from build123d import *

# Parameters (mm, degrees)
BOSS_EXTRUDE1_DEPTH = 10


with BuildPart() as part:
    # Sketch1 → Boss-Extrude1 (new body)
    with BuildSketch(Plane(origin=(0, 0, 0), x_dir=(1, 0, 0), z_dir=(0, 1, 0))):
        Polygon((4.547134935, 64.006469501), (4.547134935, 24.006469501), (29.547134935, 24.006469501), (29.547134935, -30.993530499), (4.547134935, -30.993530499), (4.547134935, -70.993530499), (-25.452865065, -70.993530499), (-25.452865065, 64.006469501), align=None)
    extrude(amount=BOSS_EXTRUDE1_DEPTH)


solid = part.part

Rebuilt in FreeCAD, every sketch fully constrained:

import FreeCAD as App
import Part
import Sketcher


def add_polygon(sketch, points):
    """Adds a closed chain of lines whose ends are joined by coincident constraints."""
    first, n = sketch.GeometryCount, len(points)
    for a, b in zip(points, points[1:] + points[:1]):
        sketch.addGeometry(Part.LineSegment(App.Vector(*a, 0), App.Vector(*b, 0)), False)
    for i in range(n):
        sketch.addConstraint(Sketcher.Constraint("Coincident", first + i, 2, first + (i + 1) % n, 1))

doc = App.newDocument("Part")
params = doc.addObject("Spreadsheet::Sheet", "Params")
for row, (alias, value) in enumerate([
    ("sketch1_width", "30 mm"),
    ("sketch1_width2", "25 mm"),
    ("sketch1_height", "40 mm"),
    ("sketch1_height2", "135 mm"),
    ("pad1_length", "10 mm"),
], start=1):
    params.set(f"A{row}", alias)
    params.set(f"B{row}", "=" + value)
    params.setAlias(f"B{row}", alias)

body = doc.addObject("PartDesign::Body", "Body")

# Sketch on XZ plane
sketch1 = body.newObject("Sketcher::SketchObject", "Sketch")
sketch1.AttachmentSupport = (doc.getObject("XZ_Plane"), [""])
sketch1.MapMode = "FlatFace"
add_polygon(sketch1, [(5, -24), (5, -64), (-25, -64), (-25, 71), (5, 71), (5, 31), (30, 31), (30, -24)])  # lines 0-7
sketch1.addConstraint([
    Sketcher.Constraint("Vertical", 0),
    Sketcher.Constraint("Horizontal", 1),
    Sketcher.Constraint("Vertical", 2),
    Sketcher.Constraint("Horizontal", 3),
    Sketcher.Constraint("Vertical", 4),
    Sketcher.Constraint("Horizontal", 5),
    Sketcher.Constraint("Vertical", 6),
    Sketcher.Constraint("Horizontal", 7),
    Sketcher.Constraint("Vertical", 0, 2, 3, 2),
    Sketcher.Constraint("Equal", 0, 4),
    Sketcher.Constraint("DistanceX", 1, 2, 1, 1, 30.0),
    Sketcher.Constraint("DistanceX", 5, 1, 5, 2, 25.0),
    Sketcher.Constraint("DistanceY", 0, 2, 0, 1, 40.0),
    Sketcher.Constraint("DistanceY", 2, 1, 2, 2, 135.0),
    Sketcher.Constraint("DistanceY", 0, 2, -1, 1, 64.00647),
    Sketcher.Constraint("DistanceX", -1, 1, 0, 2, 4.547135),
])
sketch1.setExpression("Constraints[18]", "Params.sketch1_width")
sketch1.setExpression("Constraints[19]", "Params.sketch1_width2")
sketch1.setExpression("Constraints[20]", "Params.sketch1_height")
sketch1.setExpression("Constraints[21]", "Params.sketch1_height2")
pad1 = body.newObject("PartDesign::Pad", "Pad")
pad1.Profile = sketch1
pad1.setExpression("Length", "Params.pad1_length")
pad1.Reversed = True

doc.recompute()
